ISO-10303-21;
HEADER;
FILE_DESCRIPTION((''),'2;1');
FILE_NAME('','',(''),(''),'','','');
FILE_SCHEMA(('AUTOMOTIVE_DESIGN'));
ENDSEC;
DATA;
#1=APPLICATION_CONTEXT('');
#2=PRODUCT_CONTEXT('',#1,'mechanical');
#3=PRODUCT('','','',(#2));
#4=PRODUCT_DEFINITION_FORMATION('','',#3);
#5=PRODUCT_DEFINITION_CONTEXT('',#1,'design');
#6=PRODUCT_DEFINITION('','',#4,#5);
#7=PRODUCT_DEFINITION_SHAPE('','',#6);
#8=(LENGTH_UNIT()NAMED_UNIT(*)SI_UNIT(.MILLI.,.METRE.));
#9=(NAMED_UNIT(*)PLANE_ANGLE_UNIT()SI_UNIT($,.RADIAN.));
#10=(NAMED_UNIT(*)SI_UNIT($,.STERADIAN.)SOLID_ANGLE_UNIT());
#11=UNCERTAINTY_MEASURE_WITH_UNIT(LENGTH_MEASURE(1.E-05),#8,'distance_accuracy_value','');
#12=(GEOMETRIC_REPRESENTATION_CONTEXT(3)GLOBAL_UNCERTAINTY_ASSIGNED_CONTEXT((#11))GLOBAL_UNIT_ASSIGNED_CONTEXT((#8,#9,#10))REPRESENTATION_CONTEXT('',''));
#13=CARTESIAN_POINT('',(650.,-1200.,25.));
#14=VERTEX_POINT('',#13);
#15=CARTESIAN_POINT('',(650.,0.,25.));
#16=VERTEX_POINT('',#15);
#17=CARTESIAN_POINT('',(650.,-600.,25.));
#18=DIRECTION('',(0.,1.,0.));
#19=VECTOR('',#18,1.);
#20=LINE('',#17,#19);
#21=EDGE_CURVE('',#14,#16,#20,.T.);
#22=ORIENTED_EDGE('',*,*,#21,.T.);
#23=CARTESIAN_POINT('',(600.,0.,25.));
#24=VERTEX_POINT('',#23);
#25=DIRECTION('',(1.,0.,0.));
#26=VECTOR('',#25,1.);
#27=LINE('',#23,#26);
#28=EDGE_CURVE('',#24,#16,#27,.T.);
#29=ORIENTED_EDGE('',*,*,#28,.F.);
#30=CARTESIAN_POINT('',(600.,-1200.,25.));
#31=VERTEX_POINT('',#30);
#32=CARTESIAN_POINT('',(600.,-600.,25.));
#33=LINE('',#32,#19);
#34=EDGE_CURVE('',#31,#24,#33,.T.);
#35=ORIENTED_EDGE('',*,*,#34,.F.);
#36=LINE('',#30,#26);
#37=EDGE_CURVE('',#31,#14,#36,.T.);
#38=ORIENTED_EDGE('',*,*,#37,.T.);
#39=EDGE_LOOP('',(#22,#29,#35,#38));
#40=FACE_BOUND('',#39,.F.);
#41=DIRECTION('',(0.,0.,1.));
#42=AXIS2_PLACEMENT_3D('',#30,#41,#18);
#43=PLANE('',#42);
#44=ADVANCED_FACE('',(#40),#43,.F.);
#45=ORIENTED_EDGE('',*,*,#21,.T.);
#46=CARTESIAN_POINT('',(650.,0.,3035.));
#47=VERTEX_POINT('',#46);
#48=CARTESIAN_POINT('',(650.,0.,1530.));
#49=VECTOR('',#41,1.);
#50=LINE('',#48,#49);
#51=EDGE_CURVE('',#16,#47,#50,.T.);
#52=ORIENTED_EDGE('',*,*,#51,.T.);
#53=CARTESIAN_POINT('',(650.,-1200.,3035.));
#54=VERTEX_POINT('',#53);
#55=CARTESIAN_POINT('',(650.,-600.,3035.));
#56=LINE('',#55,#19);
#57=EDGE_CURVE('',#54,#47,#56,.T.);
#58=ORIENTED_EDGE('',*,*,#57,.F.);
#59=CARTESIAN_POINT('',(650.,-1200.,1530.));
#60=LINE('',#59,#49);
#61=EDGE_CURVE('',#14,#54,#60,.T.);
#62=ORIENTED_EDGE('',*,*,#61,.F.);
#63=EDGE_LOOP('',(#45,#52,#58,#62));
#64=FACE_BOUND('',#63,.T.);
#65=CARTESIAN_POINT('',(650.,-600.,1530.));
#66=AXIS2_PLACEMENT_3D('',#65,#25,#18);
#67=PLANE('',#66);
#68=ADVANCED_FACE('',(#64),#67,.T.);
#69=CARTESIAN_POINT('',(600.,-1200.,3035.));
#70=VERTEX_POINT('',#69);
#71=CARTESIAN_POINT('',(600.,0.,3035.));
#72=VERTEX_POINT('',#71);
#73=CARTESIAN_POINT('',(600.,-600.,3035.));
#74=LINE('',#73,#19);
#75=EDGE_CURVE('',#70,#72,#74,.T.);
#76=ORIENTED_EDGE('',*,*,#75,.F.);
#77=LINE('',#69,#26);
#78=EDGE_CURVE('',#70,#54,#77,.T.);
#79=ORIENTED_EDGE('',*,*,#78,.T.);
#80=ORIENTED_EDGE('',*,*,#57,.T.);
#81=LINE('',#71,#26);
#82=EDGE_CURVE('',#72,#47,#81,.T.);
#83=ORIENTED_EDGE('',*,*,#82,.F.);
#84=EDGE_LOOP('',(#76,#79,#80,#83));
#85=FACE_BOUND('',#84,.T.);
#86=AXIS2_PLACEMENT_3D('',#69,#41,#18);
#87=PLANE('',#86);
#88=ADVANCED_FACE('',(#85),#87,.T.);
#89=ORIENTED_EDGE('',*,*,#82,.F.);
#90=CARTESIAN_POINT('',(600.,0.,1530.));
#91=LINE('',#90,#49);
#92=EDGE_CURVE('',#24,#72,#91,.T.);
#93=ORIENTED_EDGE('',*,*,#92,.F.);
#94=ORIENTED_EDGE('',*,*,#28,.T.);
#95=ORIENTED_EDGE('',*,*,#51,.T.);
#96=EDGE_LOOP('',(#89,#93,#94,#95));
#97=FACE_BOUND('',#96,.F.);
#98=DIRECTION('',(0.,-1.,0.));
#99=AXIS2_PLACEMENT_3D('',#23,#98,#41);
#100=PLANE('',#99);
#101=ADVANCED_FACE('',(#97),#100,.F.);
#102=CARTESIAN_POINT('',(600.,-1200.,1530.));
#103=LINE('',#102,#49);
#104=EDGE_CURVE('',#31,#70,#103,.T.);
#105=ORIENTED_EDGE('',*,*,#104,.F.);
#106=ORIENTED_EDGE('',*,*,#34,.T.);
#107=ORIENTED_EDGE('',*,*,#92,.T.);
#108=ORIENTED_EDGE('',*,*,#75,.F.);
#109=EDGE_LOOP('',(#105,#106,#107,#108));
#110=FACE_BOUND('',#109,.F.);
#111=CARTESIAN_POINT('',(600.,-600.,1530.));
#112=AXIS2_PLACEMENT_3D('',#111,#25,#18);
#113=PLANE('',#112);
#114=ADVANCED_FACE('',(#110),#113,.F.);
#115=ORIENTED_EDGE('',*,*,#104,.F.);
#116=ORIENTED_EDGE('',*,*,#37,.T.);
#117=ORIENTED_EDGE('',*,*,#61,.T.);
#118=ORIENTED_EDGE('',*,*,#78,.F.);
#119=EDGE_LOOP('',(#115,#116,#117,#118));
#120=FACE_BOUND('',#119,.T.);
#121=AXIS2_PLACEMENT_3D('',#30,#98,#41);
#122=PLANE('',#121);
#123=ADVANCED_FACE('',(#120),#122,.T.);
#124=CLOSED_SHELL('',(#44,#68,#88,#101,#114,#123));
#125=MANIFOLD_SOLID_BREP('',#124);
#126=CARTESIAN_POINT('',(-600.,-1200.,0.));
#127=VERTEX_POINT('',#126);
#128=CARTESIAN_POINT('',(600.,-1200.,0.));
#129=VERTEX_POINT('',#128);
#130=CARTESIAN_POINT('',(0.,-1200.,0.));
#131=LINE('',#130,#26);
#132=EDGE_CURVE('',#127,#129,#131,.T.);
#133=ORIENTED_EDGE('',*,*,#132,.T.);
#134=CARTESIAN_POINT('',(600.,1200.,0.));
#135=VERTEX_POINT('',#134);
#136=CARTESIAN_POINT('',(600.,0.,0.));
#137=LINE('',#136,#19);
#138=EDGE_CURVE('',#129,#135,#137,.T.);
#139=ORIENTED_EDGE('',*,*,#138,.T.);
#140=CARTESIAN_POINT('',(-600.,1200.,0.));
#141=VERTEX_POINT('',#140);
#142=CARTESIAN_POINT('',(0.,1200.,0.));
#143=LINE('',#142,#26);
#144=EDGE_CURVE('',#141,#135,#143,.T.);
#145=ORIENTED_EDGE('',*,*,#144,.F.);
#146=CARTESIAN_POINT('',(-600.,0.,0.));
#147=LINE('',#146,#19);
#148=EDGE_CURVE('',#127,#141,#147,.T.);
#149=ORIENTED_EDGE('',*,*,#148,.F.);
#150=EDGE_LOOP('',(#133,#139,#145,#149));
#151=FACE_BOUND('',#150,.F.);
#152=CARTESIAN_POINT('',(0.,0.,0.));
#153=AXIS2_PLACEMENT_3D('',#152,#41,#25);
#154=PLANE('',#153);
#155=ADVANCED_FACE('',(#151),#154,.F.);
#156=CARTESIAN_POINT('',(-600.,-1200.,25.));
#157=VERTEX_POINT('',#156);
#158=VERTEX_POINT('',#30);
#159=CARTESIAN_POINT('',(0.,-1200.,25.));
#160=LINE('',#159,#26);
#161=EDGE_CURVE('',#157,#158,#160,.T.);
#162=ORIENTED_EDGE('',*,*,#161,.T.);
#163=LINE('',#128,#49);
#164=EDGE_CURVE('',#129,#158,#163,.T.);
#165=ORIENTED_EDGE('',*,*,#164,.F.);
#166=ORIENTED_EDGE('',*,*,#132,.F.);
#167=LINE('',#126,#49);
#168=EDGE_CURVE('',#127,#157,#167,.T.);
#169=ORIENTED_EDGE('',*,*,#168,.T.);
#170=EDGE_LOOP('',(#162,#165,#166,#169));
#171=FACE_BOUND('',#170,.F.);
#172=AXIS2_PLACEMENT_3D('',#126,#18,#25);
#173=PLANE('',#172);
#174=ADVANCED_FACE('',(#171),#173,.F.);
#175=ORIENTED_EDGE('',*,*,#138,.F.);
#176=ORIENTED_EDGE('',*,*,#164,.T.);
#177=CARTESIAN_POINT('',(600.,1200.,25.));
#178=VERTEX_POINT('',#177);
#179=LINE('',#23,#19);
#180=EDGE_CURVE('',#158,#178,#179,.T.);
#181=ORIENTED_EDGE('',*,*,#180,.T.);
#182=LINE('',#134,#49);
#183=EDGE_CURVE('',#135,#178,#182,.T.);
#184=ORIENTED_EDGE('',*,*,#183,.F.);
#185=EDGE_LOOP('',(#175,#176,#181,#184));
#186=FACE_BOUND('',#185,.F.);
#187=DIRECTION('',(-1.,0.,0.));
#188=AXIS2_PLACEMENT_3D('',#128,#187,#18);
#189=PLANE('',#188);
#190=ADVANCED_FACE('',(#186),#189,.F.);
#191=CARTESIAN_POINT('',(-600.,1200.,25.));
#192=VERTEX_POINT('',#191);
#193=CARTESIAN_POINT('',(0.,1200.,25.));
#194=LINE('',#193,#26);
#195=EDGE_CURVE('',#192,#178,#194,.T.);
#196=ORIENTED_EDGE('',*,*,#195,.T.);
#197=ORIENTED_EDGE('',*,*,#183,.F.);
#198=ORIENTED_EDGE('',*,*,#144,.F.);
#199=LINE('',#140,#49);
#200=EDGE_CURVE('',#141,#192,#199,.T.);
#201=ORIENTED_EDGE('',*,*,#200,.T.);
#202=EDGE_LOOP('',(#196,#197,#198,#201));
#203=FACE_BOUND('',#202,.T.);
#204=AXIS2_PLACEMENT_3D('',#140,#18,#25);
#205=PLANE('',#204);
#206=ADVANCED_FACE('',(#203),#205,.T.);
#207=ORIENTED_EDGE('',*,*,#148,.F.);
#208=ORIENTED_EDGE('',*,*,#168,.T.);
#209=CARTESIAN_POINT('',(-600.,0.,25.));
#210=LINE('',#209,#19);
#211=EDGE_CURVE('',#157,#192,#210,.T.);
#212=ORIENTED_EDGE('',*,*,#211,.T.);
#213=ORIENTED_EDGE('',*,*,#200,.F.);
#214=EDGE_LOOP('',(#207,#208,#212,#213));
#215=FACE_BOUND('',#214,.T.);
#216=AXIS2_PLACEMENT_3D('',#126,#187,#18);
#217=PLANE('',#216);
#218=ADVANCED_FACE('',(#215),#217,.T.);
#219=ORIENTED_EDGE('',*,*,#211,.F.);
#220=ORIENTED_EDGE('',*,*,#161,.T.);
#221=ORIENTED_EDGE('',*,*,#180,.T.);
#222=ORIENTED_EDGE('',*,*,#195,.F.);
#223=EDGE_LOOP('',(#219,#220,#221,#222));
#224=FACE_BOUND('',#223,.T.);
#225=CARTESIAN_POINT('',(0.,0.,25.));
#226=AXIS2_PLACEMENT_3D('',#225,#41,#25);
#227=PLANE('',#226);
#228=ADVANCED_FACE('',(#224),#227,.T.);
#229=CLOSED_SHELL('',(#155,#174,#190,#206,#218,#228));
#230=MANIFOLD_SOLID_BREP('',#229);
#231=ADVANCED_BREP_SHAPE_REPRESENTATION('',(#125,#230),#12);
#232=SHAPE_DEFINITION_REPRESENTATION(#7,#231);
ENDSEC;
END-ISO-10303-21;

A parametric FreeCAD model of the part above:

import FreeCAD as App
import Part
import Sketcher
from FreeCAD import Vector
Q = App.Units.Quantity

doc = App.newDocument("Part")
body = doc.addObject("PartDesign::Body", "Body")

# Sketch on XY plane
sketch1 = doc.addObject("Sketcher::SketchObject", "Sketch")
body.addObject(sketch1)
sketch1.AttachmentSupport = (doc.XY_Plane, [""])
sketch1.MapMode = "FlatFace"
sketch1.addGeometry(Part.LineSegment(Vector(-600, 1200, 0), Vector(-600, -1200, 0)), False)
sketch1.addGeometry(Part.LineSegment(Vector(-600, -1200, 0), Vector(600, -1200, 0)), False)
sketch1.addGeometry(Part.LineSegment(Vector(600, -1200, 0), Vector(600, 1200, 0)), False)
sketch1.addGeometry(Part.LineSegment(Vector(600, 1200, 0), Vector(-600, 1200, 0)), False)
sketch1.addConstraint(Sketcher.Constraint("Coincident", 0, 2, 1, 1))
sketch1.addConstraint(Sketcher.Constraint("Coincident", 1, 2, 2, 1))
sketch1.addConstraint(Sketcher.Constraint("Coincident", 2, 2, 3, 1))
sketch1.addConstraint(Sketcher.Constraint("Coincident", 3, 2, 0, 1))
sketch1.addConstraint(Sketcher.Constraint("Vertical", 0))
sketch1.addConstraint(Sketcher.Constraint("Horizontal", 1))
sketch1.addConstraint(Sketcher.Constraint("Vertical", 2))
sketch1.addConstraint(Sketcher.Constraint("Horizontal", 3))
sketch1.addConstraint(Sketcher.Constraint("Symmetric", 0, 2, 2, 2, -1, 1))
sketch1.addConstraint(Sketcher.Constraint("DistanceX", 1, 1, 1, 2, Q("1200 mm")))
sketch1.addConstraint(Sketcher.Constraint("DistanceY", 0, 2, 0, 1, Q("2400 mm")))
pad1 = doc.addObject("PartDesign::Pad", "Pad")
body.addObject(pad1)
pad1.Profile = sketch1
pad1.Length = 25
body2 = doc.addObject("PartDesign::Body", "Body001")

# Sketch on YZ plane
sketch2 = doc.addObject("Sketcher::SketchObject", "Sketch001")
body2.addObject(sketch2)
sketch2.AttachmentSupport = (doc.getObject("YZ_Plane001"), [""])
sketch2.MapMode = "FlatFace"
sketch2.AttachmentOffset = App.Placement(Vector(0, 0, 600), App.Rotation())
sketch2.addGeometry(Part.LineSegment(Vector(-1200, 3035, 0), Vector(-1200, 25, 0)), False)
sketch2.addGeometry(Part.LineSegment(Vector(-1200, 25, 0), Vector(0, 25, 0)), False)
sketch2.addGeometry(Part.LineSegment(Vector(0, 25, 0), Vector(0, 3035, 0)), False)
sketch2.addGeometry(Part.LineSegment(Vector(0, 3035, 0), Vector(-1200, 3035, 0)), False)
sketch2.addConstraint(Sketcher.Constraint("Coincident", 0, 2, 1, 1))
sketch2.addConstraint(Sketcher.Constraint("Coincident", 1, 2, 2, 1))
sketch2.addConstraint(Sketcher.Constraint("Coincident", 2, 2, 3, 1))
sketch2.addConstraint(Sketcher.Constraint("Coincident", 3, 2, 0, 1))
sketch2.addConstraint(Sketcher.Constraint("Vertical", 0))
sketch2.addConstraint(Sketcher.Constraint("Horizontal", 1))
sketch2.addConstraint(Sketcher.Constraint("Vertical", 2))
sketch2.addConstraint(Sketcher.Constraint("Horizontal", 3))
sketch2.addConstraint(Sketcher.Constraint("PointOnObject", 1, 2, -2))
sketch2.addConstraint(Sketcher.Constraint("DistanceX", 1, 1, 1, 2, Q("1200 mm")))
sketch2.addConstraint(Sketcher.Constraint("DistanceY", 0, 2, 0, 1, Q("3010 mm")))
sketch2.addConstraint(Sketcher.Constraint("DistanceY", -1, 1, 0, 2, Q("25 mm")))
pad2 = doc.addObject("PartDesign::Pad", "Pad001")
body2.addObject(pad2)
pad2.Profile = sketch2
pad2.Length = 50

doc.recompute()
